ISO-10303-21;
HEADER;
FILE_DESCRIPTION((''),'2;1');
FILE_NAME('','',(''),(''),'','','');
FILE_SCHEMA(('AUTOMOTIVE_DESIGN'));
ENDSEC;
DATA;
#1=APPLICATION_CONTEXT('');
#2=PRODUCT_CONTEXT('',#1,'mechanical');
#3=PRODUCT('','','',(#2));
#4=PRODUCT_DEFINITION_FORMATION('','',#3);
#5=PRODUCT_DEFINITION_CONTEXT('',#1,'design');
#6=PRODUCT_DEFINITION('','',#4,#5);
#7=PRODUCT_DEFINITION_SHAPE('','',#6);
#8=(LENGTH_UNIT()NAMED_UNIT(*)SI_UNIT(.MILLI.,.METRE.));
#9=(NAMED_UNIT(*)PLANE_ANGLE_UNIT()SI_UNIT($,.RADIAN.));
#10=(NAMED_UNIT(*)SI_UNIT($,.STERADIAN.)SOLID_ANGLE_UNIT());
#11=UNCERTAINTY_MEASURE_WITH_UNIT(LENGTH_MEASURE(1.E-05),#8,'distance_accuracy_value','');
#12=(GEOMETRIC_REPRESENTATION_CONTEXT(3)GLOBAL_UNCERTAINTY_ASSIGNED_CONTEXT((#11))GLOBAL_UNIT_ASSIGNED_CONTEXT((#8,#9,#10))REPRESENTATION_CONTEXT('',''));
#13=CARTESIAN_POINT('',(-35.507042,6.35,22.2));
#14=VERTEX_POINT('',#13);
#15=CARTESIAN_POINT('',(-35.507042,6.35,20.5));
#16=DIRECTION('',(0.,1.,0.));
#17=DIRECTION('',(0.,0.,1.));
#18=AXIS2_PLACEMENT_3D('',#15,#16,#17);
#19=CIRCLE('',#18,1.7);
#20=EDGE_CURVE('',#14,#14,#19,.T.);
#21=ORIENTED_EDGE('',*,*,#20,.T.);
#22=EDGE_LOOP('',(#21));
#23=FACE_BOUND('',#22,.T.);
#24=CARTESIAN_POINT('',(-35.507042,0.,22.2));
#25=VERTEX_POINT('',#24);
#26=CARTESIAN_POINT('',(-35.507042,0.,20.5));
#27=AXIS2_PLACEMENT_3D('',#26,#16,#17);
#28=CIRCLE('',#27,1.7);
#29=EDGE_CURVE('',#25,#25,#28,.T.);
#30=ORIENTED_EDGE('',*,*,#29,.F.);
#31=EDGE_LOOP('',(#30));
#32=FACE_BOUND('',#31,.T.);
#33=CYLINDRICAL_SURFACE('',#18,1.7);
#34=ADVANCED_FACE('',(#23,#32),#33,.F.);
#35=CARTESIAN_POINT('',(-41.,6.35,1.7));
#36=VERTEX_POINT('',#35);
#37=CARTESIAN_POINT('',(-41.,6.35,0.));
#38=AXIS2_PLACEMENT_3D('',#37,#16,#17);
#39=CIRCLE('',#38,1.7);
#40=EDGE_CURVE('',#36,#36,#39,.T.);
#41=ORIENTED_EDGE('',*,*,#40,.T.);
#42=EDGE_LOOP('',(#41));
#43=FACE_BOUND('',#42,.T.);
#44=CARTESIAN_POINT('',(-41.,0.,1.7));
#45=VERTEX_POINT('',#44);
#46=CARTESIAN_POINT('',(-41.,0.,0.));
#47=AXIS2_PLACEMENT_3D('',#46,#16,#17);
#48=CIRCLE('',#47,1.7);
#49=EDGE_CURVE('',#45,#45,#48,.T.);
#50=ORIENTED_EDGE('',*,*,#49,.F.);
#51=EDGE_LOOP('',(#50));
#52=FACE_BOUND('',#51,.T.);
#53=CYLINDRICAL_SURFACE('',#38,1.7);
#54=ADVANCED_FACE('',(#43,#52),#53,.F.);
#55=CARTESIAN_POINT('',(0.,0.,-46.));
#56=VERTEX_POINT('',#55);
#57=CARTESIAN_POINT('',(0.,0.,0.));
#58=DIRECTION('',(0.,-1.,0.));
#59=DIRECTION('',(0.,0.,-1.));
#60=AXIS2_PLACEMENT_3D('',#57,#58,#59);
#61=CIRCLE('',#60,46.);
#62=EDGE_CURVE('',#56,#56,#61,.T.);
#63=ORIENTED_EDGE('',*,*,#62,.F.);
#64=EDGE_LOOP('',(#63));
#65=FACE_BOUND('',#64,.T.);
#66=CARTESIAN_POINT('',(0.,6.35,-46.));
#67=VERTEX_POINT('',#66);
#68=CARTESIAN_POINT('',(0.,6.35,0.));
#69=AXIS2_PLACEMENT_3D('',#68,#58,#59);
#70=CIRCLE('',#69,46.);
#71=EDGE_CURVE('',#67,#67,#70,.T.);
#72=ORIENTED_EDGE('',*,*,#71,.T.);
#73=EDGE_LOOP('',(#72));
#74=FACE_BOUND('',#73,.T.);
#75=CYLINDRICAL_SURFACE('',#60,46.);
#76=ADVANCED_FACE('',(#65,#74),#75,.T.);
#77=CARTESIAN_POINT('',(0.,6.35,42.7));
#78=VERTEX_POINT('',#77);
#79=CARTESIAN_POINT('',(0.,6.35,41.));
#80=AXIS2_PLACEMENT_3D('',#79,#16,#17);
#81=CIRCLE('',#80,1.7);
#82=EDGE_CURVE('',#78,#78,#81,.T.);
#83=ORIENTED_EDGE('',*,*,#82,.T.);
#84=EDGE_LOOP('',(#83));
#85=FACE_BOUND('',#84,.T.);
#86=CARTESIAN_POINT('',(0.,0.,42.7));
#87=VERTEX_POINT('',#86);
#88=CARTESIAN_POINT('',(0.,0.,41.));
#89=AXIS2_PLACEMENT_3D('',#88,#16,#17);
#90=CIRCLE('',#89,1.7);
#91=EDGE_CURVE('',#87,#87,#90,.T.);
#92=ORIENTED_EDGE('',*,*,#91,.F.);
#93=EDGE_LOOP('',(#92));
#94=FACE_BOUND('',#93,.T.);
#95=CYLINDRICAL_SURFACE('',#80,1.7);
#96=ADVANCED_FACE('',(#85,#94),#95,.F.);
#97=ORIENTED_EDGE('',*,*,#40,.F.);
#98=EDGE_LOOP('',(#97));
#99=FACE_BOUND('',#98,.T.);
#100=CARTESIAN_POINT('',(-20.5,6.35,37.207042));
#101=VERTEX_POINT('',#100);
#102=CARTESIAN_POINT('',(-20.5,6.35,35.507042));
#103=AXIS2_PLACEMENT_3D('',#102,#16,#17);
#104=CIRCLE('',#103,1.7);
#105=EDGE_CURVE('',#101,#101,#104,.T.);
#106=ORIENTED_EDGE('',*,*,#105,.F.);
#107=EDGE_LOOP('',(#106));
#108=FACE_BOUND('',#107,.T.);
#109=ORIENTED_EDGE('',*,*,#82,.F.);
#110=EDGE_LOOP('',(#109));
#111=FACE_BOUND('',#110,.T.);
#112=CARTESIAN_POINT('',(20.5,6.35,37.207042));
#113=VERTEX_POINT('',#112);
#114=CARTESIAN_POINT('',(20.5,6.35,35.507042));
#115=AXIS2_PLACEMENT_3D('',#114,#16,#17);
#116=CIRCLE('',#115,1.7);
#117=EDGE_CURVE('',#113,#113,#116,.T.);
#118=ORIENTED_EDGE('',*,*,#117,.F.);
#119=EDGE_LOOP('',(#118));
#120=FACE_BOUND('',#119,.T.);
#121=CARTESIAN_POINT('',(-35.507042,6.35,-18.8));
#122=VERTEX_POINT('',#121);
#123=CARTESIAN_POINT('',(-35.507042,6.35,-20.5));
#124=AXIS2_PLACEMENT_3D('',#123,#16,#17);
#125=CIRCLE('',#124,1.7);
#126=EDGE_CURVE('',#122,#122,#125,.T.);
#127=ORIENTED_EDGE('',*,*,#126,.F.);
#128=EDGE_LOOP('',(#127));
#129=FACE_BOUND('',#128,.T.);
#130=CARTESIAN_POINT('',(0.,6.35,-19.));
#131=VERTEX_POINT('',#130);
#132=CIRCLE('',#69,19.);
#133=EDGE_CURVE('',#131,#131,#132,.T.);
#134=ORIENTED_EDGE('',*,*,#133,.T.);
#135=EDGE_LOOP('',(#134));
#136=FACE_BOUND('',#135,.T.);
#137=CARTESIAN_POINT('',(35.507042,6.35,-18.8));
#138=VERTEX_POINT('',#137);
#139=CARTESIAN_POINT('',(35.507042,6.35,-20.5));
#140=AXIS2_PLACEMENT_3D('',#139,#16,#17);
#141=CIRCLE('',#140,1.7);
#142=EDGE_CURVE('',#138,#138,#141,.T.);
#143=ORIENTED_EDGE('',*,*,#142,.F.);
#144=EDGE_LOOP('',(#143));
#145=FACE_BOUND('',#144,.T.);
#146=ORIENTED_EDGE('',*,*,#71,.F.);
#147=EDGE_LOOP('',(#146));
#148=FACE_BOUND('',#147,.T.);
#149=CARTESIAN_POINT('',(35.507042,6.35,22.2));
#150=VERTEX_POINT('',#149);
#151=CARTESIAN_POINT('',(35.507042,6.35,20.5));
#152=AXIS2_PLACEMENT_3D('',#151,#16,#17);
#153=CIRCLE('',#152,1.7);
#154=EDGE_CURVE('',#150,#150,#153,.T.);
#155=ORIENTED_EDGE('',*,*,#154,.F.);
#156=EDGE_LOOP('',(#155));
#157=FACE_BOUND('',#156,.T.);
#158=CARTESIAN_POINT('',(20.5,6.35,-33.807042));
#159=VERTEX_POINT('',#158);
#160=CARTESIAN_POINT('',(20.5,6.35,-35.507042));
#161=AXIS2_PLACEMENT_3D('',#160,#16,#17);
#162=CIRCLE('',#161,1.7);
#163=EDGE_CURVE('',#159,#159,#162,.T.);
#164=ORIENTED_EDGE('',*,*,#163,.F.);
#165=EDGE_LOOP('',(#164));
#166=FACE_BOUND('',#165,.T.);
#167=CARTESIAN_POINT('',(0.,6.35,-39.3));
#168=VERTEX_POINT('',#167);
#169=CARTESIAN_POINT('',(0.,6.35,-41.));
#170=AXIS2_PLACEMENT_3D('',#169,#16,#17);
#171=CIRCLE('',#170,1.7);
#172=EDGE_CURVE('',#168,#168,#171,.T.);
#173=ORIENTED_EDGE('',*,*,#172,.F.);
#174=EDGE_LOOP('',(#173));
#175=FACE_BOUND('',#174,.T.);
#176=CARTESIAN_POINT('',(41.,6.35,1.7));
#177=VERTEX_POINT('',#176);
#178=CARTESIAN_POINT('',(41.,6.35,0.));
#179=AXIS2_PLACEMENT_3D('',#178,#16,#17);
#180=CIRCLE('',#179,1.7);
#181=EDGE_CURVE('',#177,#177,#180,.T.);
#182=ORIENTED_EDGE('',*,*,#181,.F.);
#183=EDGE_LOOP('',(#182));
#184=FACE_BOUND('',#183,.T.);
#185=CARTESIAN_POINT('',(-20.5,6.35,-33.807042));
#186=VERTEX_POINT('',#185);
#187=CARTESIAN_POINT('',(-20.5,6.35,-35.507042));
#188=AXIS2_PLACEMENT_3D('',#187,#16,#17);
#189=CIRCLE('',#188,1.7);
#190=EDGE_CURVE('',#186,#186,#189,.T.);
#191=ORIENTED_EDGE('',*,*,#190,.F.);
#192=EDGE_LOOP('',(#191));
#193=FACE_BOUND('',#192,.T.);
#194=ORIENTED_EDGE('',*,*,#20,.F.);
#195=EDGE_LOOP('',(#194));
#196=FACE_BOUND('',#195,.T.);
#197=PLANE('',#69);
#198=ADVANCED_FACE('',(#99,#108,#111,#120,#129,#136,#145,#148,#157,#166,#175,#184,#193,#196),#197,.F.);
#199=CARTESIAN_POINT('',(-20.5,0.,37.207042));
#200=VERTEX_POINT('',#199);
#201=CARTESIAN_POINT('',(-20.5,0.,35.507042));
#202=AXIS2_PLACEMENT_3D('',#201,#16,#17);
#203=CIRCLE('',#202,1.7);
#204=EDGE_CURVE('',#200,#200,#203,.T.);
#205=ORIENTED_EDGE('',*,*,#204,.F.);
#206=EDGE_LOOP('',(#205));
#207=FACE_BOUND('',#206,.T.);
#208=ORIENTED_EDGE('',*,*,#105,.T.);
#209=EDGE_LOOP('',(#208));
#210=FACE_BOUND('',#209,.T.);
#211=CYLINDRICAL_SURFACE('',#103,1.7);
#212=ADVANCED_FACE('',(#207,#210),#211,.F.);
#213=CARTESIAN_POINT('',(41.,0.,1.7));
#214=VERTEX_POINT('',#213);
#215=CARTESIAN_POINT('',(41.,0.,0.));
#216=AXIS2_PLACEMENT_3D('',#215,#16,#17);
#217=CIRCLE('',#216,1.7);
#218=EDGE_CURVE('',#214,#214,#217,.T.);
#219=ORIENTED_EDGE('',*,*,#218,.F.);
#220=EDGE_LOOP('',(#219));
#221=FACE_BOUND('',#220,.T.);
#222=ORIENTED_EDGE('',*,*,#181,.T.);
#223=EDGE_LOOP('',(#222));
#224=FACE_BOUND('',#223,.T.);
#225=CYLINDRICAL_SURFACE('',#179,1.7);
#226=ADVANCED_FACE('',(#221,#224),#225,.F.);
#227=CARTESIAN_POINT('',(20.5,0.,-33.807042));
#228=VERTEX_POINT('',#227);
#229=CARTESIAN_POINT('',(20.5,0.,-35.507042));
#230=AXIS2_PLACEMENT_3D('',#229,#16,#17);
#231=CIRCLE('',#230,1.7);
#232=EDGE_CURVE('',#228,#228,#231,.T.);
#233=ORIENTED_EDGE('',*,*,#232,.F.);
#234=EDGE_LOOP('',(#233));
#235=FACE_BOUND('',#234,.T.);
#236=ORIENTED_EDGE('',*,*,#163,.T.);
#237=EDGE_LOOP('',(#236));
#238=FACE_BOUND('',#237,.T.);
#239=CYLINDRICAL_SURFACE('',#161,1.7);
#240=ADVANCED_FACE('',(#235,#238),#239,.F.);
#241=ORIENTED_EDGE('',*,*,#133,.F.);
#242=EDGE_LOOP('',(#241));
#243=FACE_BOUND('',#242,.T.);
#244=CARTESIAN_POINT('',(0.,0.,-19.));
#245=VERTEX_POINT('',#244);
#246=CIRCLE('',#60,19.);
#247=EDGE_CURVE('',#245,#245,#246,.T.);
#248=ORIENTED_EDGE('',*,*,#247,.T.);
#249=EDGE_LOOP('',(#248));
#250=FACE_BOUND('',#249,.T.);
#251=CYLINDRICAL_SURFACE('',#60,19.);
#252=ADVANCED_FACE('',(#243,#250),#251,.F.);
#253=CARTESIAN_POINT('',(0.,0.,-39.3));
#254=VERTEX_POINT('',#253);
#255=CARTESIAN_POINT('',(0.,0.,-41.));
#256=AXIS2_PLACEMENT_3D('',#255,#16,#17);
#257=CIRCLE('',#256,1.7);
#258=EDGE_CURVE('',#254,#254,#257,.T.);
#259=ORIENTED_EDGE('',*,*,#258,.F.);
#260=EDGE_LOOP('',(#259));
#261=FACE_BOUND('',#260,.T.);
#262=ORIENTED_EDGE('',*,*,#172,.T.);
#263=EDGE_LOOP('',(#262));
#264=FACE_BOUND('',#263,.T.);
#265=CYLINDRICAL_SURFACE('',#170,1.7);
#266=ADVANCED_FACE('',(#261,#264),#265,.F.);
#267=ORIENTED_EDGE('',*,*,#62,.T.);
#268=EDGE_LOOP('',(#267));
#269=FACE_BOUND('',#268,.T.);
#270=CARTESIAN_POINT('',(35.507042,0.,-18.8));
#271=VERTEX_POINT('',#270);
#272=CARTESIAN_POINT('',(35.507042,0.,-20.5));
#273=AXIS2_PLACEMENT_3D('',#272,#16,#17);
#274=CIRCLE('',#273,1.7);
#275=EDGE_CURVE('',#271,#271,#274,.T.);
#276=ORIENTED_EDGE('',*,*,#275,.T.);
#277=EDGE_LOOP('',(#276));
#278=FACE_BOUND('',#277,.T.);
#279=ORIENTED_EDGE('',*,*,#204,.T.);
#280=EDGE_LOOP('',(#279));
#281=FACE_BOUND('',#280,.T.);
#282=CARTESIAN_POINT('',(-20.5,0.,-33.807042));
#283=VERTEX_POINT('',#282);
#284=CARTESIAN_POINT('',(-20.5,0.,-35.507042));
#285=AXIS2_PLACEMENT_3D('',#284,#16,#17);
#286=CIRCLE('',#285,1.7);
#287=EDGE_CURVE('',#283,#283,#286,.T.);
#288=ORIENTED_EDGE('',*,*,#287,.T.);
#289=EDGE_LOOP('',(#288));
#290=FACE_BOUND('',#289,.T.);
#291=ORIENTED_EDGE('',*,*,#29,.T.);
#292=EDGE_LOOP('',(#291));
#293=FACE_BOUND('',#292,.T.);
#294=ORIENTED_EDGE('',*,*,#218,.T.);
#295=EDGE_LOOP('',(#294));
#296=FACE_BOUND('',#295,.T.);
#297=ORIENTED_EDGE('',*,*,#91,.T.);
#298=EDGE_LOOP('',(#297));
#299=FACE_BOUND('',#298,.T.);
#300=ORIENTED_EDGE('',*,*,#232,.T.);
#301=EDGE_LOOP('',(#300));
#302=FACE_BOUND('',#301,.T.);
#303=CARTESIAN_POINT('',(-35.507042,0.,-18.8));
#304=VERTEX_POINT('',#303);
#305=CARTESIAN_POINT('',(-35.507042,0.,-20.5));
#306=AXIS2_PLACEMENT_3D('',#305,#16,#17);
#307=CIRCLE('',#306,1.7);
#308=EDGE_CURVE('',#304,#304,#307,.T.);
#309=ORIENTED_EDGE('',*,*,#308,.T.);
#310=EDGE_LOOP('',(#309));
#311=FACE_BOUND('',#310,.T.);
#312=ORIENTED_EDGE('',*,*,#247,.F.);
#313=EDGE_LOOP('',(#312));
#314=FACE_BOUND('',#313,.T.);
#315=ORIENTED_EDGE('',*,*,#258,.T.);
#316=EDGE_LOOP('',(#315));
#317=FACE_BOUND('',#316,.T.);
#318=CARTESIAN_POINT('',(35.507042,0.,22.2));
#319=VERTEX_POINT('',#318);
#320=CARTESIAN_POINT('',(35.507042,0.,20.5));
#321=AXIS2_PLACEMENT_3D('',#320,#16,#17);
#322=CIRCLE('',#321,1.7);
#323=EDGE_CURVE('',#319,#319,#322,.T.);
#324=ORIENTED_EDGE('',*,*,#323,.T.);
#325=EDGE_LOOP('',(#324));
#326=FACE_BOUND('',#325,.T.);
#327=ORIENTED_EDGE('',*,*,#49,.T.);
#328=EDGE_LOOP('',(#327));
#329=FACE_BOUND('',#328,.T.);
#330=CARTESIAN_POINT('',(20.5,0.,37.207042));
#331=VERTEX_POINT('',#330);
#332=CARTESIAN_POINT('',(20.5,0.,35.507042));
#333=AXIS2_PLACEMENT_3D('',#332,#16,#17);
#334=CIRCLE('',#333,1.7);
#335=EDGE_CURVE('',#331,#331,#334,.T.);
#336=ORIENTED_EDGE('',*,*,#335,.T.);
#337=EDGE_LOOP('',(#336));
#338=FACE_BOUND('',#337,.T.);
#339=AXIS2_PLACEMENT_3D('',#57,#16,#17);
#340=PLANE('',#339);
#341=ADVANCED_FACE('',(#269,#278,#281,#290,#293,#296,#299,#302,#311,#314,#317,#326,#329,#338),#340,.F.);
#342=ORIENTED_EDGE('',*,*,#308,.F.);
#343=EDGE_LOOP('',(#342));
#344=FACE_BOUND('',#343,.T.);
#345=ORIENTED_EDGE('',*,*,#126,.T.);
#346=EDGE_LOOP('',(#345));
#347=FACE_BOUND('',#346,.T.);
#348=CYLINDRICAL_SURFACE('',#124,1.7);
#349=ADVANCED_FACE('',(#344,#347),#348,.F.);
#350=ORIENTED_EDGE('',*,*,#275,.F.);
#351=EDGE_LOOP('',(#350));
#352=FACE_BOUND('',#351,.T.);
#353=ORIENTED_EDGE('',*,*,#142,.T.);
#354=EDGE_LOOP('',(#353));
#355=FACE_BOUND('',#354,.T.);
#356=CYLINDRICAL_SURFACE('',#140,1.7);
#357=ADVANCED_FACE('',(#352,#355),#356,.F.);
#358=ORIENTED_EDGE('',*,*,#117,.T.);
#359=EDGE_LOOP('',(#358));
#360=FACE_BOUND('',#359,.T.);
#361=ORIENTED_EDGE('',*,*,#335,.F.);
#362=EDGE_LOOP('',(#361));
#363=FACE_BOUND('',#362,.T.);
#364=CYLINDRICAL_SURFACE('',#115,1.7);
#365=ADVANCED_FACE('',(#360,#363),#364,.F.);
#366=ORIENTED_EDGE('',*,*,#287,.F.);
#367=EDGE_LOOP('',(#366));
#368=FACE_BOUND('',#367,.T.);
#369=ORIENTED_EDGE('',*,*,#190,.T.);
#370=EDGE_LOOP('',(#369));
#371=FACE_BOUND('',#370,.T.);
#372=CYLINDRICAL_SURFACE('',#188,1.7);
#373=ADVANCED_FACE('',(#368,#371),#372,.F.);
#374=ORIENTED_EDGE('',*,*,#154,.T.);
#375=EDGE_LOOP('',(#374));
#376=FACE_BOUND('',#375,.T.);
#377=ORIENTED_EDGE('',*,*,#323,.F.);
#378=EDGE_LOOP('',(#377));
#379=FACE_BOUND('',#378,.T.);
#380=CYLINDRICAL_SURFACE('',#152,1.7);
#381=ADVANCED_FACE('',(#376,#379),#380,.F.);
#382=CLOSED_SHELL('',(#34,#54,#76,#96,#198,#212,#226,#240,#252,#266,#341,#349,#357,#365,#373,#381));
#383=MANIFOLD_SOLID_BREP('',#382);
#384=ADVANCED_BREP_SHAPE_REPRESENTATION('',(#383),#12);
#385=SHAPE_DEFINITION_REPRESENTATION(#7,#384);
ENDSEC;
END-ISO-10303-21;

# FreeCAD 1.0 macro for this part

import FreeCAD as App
import Part
import Sketcher

V = App.Vector
Q = App.Units.Quantity

doc = App.newDocument("Part")
body = doc.addObject("PartDesign::Body", "Body")

# Sketch on YZ plane
sketch1 = doc.addObject("Sketcher::SketchObject", "Sketch")
body.addObject(sketch1)
sketch1.AttachmentSupport = (doc.YZ_Plane, [""])
sketch1.MapMode = "FlatFace"
sketch1.addGeometry([
    Part.LineSegment(V(6.35, 46, 0), V(0, 46, 0)),
    Part.LineSegment(V(0, 46, 0), V(0, 19, 0)),
    Part.LineSegment(V(0, 19, 0), V(6.35, 19, 0)),
    Part.LineSegment(V(6.35, 19, 0), V(6.35, 46, 0)),
], False)
sketch1.addConstraint([
    Sketcher.Constraint("Coincident", 0, 2, 1, 1),
    Sketcher.Constraint("Coincident", 1, 2, 2, 1),
    Sketcher.Constraint("Coincident", 2, 2, 3, 1),
    Sketcher.Constraint("Coincident", 3, 2, 0, 1),
    Sketcher.Constraint("Horizontal", 0),
    Sketcher.Constraint("Vertical", 1),
    Sketcher.Constraint("Horizontal", 2),
    Sketcher.Constraint("Vertical", 3),
    Sketcher.Constraint("PointOnObject", 0, 2, -2),
    Sketcher.Constraint("DistanceY", 1, 2, 1, 1, Q("27 mm")),
    Sketcher.Constraint("DistanceY", -1, 1, 0, 2, Q("46 mm")),
    Sketcher.Constraint("DistanceX", 0, 2, 0, 1, Q("6.35 mm")),
])
revolution = doc.addObject("PartDesign::Revolution", "Revolution")
body.addObject(revolution)
revolution.Profile = sketch1
revolution.ReferenceAxis = (sketch1, ["H_Axis"])
revolution.Angle = 360

# Sketch on XZ plane
sketch2 = doc.addObject("Sketcher::SketchObject", "Sketch001")
body.addObject(sketch2)
sketch2.AttachmentSupport = (doc.XZ_Plane, [""])
sketch2.MapMode = "FlatFace"
sketch2.AttachmentOffset = App.Placement(V(0, 0, -6.35), App.Rotation())
sketch2.addGeometry(Part.Circle(V(0, -41, 0), V(0, 0, 1), 1.7), False)
sketch2.addConstraint([
    Sketcher.Constraint("PointOnObject", 0, 3, -2),
    Sketcher.Constraint("Diameter", 0, Q("3.4 mm")),
    Sketcher.Constraint("DistanceY", 0, 3, -1, 1, Q("41 mm")),
])
doc.recompute()
hole = doc.addObject("PartDesign::Hole", "Hole")
body.addObject(hole)
hole.Profile = sketch2
hole.ThreadType = "None"
hole.Diameter = 3.4
hole.DepthType = "ThroughAll"
hole.Reversed = True
doc.recompute()

polarpattern = doc.addObject("PartDesign::PolarPattern", "PolarPattern")
body.addObject(polarpattern)
polarpattern.Originals = [hole]
polarpattern.Axis = (doc.Y_Axis, [""])
polarpattern.Angle = 360
polarpattern.Occurrences = 12
body.Tip = polarpattern

doc.recompute()
